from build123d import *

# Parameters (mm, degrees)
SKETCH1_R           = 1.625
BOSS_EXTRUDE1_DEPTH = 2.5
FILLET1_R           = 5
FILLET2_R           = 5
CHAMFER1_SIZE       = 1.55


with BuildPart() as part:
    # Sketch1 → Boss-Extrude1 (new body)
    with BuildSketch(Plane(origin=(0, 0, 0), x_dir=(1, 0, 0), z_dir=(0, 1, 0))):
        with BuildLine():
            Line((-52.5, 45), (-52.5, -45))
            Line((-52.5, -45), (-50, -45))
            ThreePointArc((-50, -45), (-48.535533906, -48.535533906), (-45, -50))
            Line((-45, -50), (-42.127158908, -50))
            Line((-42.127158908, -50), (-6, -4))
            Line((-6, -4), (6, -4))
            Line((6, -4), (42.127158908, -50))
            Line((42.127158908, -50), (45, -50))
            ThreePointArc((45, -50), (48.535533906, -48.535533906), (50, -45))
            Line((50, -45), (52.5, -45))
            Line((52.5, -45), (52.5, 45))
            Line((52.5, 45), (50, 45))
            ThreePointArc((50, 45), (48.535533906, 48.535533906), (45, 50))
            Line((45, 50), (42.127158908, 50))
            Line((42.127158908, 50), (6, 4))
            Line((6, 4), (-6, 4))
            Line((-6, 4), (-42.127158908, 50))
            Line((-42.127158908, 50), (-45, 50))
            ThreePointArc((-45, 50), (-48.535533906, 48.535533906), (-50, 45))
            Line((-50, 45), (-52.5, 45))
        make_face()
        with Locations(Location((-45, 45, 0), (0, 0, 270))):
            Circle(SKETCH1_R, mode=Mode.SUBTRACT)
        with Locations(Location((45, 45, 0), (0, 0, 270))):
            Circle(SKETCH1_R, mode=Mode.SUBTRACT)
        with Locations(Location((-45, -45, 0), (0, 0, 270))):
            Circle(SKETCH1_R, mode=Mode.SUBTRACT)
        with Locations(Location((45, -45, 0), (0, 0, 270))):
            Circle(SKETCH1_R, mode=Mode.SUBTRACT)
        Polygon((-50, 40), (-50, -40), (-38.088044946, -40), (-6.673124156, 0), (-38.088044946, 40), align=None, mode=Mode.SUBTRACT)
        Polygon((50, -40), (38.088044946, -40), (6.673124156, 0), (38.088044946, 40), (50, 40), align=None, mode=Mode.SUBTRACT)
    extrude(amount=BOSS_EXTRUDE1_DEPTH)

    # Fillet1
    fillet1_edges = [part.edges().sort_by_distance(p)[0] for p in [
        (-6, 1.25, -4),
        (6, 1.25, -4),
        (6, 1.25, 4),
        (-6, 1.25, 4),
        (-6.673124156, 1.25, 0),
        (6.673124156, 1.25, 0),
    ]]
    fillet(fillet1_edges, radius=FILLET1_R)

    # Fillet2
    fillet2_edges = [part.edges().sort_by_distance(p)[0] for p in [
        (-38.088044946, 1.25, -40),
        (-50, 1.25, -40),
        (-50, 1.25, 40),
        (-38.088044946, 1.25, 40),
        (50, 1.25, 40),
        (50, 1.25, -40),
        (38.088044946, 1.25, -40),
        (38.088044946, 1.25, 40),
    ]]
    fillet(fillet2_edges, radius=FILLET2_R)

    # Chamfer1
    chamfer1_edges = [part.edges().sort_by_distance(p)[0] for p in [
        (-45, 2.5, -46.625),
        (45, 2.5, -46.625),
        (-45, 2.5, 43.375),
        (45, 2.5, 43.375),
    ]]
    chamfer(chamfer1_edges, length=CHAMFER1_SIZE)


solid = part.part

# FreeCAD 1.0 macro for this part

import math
import FreeCAD as App
import Part
import Sketcher

V = App.Vector
Q = App.Units.Quantity


def edges_at(feature, points):
    """Names of the edges that pass closest to the given points."""
    edges = feature.Shape.Edges
    near = lambda p: min(range(len(edges)), key=lambda i: edges[i].distToShape(Part.Vertex(*p))[0])
    return sorted({f"Edge{near(p) + 1}" for p in points})


def add_polygon(sketch, points):
    """Adds a closed chain of lines whose ends are joined by coincident constraints."""
    first, n = sketch.GeometryCount, len(points)
    for a, b in zip(points, points[1:] + points[:1]):
        sketch.addGeometry(Part.LineSegment(App.Vector(*a, 0), App.Vector(*b, 0)), False)
    for i in range(n):
        sketch.addConstraint(Sketcher.Constraint("Coincident", first + i, 2, first + (i + 1) % n, 1))

doc = App.newDocument("Part")
body = doc.addObject("PartDesign::Body", "Body")

sketch1 = body.newObject("Sketcher::SketchObject", "Sketch")
sketch1.AttachmentSupport = (doc.getObject("XZ_Plane"), [""])
sketch1.MapMode = "FlatFace"
sketch1.addGeometry(Part.LineSegment(V(-52.5, -45, 0), V(-52.5, 45, 0)), False)
sketch1.addGeometry(Part.LineSegment(V(-52.5, 45, 0), V(-50, 45, 0)), False)
sketch1.addGeometry(Part.ArcOfCircle(Part.Circle(V(-45, 45, 0), V(0, 0, 1), 5), math.radians(90), math.radians(180)), False)
sketch1.addGeometry(Part.LineSegment(V(-45, 50, 0), V(-42.1, 50, 0)), False)
sketch1.addGeometry(Part.LineSegment(V(-42.1, 50, 0), V(-6, 4, 0)), False)
sketch1.addGeometry(Part.LineSegment(V(-6, 4, 0), V(6, 4, 0)), False)
sketch1.addGeometry(Part.LineSegment(V(6, 4, 0), V(42.1, 50, 0)), False)
sketch1.addGeometry(Part.LineSegment(V(42.1, 50, 0), V(45, 50, 0)), False)
sketch1.addGeometry(Part.ArcOfCircle(Part.Circle(V(45, 45, 0), V(0, 0, 1), 5), math.radians(0), math.radians(90)), False)
sketch1.addGeometry(Part.LineSegment(V(50, 45, 0), V(52.5, 45, 0)), False)
sketch1.addGeometry(Part.LineSegment(V(52.5, 45, 0), V(52.5, -45, 0)), False)
sketch1.addGeometry(Part.LineSegment(V(52.5, -45, 0), V(50, -45, 0)), False)
sketch1.addGeometry(Part.ArcOfCircle(Part.Circle(V(45, -45, 0), V(0, 0, 1), 5), math.radians(-90), math.radians(0)), False)
sketch1.addGeometry(Part.LineSegment(V(45, -50, 0), V(42.1, -50, 0)), False)
sketch1.addGeometry(Part.LineSegment(V(42.1, -50, 0), V(6, -4, 0)), False)
sketch1.addGeometry(Part.LineSegment(V(6, -4, 0), V(-6, -4, 0)), False)
sketch1.addGeometry(Part.LineSegment(V(-6, -4, 0), V(-42.1, -50, 0)), False)
sketch1.addGeometry(Part.LineSegment(V(-42.1, -50, 0), V(-45, -50, 0)), False)
sketch1.addGeometry(Part.ArcOfCircle(Part.Circle(V(-45, -45, 0), V(0, 0, 1), 5), math.radians(180), math.radians(270)), False)
sketch1.addGeometry(Part.LineSegment(V(-50, -45, 0), V(-52.5, -45, 0)), False)
sketch1.addGeometry(Part.Circle(V(-45, 45, 0), V(0, 0, 1), 1.6), False)
sketch1.addGeometry(Part.Circle(V(45, 45, 0), V(0, 0, 1), 1.6), False)
add_polygon(sketch1, [(-50, 40), (-50, -40), (-38.1, -40), (-6.7, 0), (-38.1, 40)])
sketch1.addGeometry(Part.Circle(V(-45, -45, 0), V(0, 0, 1), 1.6), False)
add_polygon(sketch1, [(50, -40), (50, 40), (38.1, 40), (6.7, 0), (38.1, -40)])
sketch1.addGeometry(Part.Circle(V(45, -45, 0), V(0, 0, 1), 1.6), False)
sketch1.addConstraint([
    Sketcher.Constraint("Coincident", 0, 2, 1, 1),
    Sketcher.Constraint("Coincident", 1, 2, 2, 2),
    Sketcher.Constraint("Tangent", 2, 1, 3, 1),
    Sketcher.Constraint("Coincident", 3, 2, 4, 1),
    Sketcher.Constraint("Coincident", 4, 2, 5, 1),
    Sketcher.Constraint("Coincident", 5, 2, 6, 1),
    Sketcher.Constraint("Coincident", 6, 2, 7, 1),
    Sketcher.Constraint("Tangent", 7, 2, 8, 2),
    Sketcher.Constraint("Coincident", 8, 1, 9, 1),
    Sketcher.Constraint("Coincident", 9, 2, 10, 1),
    Sketcher.Constraint("Coincident", 10, 2, 11, 1),
    Sketcher.Constraint("Coincident", 11, 2, 12, 2),
    Sketcher.Constraint("Tangent", 12, 1, 13, 1),
    Sketcher.Constraint("Coincident", 13, 2, 14, 1),
    Sketcher.Constraint("Coincident", 14, 2, 15, 1),
    Sketcher.Constraint("Coincident", 15, 2, 16, 1),
    Sketcher.Constraint("Coincident", 16, 2, 17, 1),
    Sketcher.Constraint("Tangent", 17, 2, 18, 2),
    Sketcher.Constraint("Coincident", 18, 1, 19, 1),
    Sketcher.Constraint("Coincident", 19, 2, 0, 1),
    Sketcher.Constraint("Vertical", 0),
    Sketcher.Constraint("Horizontal", 1),
    Sketcher.Constraint("Horizontal", 3),
    Sketcher.Constraint("Horizontal", 5),
    Sketcher.Constraint("Horizontal", 7),
    Sketcher.Constraint("Horizontal", 9),
    Sketcher.Constraint("Vertical", 10),
    Sketcher.Constraint("Horizontal", 11),
    Sketcher.Constraint("Horizontal", 13),
    Sketcher.Constraint("Horizontal", 15),
    Sketcher.Constraint("Horizontal", 17),
    Sketcher.Constraint("Horizontal", 19),
    Sketcher.Constraint("Vertical", 22),
    Sketcher.Constraint("Horizontal", 23),
    Sketcher.Constraint("Horizontal", 26),
    Sketcher.Constraint("Vertical", 28),
    Sketcher.Constraint("Horizontal", 29),
    Sketcher.Constraint("Horizontal", 32),
    Sketcher.Constraint("Coincident", 20, 3, 2, 3),
    Sketcher.Constraint("Coincident", 21, 3, 8, 3),
    Sketcher.Constraint("Coincident", 27, 3, 18, 3),
    Sketcher.Constraint("Coincident", 33, 3, 12, 3),
    Sketcher.Constraint("Equal", 2, 8),
    Sketcher.Constraint("Equal", 8, 12),
    Sketcher.Constraint("Equal", 12, 18),
    Sketcher.Constraint("Equal", 20, 21),
    Sketcher.Constraint("Equal", 21, 27),
    Sketcher.Constraint("Equal", 27, 33),
    Sketcher.Constraint("Symmetric", 2, 3, 12, 3, -1, 1),
    Sketcher.Constraint("Symmetric", 8, 3, 18, 3, -1, 1),
    Sketcher.Constraint("Symmetric", 0, 2, 10, 2, -1, 1),
    Sketcher.Constraint("Symmetric", 4, 2, 14, 2, -1, 1),
    Sketcher.Constraint("Symmetric", 22, 2, 28, 2, -1, 1),
    Sketcher.Constraint("Symmetric", 24, 2, 30, 2, -1, 1),
    Sketcher.Constraint("Symmetric", 25, 2, 31, 2, -1, 1),
    Sketcher.Constraint("Symmetric", 2, 3, 8, 3, -2),
    Sketcher.Constraint("Symmetric", 25, 2, 29, 2, -2),
    Sketcher.Constraint("PointOnObject", 24, 2, -1),
    Sketcher.Constraint("Parallel", 4, 14),
    Sketcher.Constraint("Parallel", 6, 16),
    Sketcher.Constraint("Parallel", 16, 24),
    Sketcher.Constraint("Parallel", 14, 25),
    Sketcher.Constraint("Parallel", 24, 30),
    Sketcher.Constraint("Horizontal", 21, 3, 0, 2),
    Sketcher.Constraint("Horizontal", 1, 2, 8, 1),
    Sketcher.Constraint("Horizontal", 11, 2, 18, 1),
    Sketcher.Constraint("Vertical", 6, 2, 13, 2),
    Sketcher.Constraint("Vertical", 4, 2, 15, 2),
    Sketcher.Constraint("Vertical", 18, 1, 22, 2),
    Sketcher.Constraint("Radius", 2, Q("5 mm")),
    Sketcher.Constraint("Diameter", 20, Q("3.25 mm")),
    Sketcher.Constraint("DistanceX", 5, 1, 5, 2, Q("12 mm")),
    Sketcher.Constraint("DistanceY", 0, 1, 0, 2, Q("90 mm")),
    Sketcher.Constraint("DistanceY", 22, 2, 22, 1, Q("80 mm")),
    Sketcher.Constraint("DistanceX", 1, 1, 1, 2, Q("2.5 mm")),
    Sketcher.Constraint("DistanceX", 2, 3, -1, 1, Q("45 mm")),
    Sketcher.Constraint("DistanceY", -1, 1, 4, 2, Q("4 mm")),
    Sketcher.Constraint("DistanceX", 3, 1, 3, 2, Q("2.872841 mm")),
    Sketcher.Constraint("DistanceX", 23, 1, 23, 2, Q("11.911955 mm")),
])
pad1 = body.newObject("PartDesign::Pad", "Pad")
pad1.Profile = sketch1
pad1.Length = 2.5
pad1.Reversed = True
doc.recompute()

fillet = body.newObject("PartDesign::Fillet", "Fillet")
fillet.Base = (pad1, edges_at(pad1, [
    (-6, 1.25, -4),
    (6, 1.25, -4),
    (6, 1.25, 4),
    (-6, 1.25, 4),
    (-6.673, 1.25, 0),
    (6.673, 1.25, 0),
]))
fillet.Radius = 5
doc.recompute()

fillet2 = body.newObject("PartDesign::Fillet", "Fillet001")
fillet2.Base = (fillet, edges_at(fillet, [
    (-38.088, 1.25, -40),
    (-50, 1.25, -40),
    (-50, 1.25, 40),
    (-38.088, 1.25, 40),
    (50, 1.25, 40),
    (50, 1.25, -40),
    (38.088, 1.25, -40),
    (38.088, 1.25, 40),
]))
fillet2.Radius = 5
doc.recompute()

chamfer = body.newObject("PartDesign::Chamfer", "Chamfer")
chamfer.Base = (fillet2, edges_at(fillet2, [
    (-45, 2.5, -46.625),
    (45, 2.5, -46.625),
    (-45, 2.5, 43.375),
    (45, 2.5, 43.375),
]))
chamfer.Size = 1.55

doc.recompute()
